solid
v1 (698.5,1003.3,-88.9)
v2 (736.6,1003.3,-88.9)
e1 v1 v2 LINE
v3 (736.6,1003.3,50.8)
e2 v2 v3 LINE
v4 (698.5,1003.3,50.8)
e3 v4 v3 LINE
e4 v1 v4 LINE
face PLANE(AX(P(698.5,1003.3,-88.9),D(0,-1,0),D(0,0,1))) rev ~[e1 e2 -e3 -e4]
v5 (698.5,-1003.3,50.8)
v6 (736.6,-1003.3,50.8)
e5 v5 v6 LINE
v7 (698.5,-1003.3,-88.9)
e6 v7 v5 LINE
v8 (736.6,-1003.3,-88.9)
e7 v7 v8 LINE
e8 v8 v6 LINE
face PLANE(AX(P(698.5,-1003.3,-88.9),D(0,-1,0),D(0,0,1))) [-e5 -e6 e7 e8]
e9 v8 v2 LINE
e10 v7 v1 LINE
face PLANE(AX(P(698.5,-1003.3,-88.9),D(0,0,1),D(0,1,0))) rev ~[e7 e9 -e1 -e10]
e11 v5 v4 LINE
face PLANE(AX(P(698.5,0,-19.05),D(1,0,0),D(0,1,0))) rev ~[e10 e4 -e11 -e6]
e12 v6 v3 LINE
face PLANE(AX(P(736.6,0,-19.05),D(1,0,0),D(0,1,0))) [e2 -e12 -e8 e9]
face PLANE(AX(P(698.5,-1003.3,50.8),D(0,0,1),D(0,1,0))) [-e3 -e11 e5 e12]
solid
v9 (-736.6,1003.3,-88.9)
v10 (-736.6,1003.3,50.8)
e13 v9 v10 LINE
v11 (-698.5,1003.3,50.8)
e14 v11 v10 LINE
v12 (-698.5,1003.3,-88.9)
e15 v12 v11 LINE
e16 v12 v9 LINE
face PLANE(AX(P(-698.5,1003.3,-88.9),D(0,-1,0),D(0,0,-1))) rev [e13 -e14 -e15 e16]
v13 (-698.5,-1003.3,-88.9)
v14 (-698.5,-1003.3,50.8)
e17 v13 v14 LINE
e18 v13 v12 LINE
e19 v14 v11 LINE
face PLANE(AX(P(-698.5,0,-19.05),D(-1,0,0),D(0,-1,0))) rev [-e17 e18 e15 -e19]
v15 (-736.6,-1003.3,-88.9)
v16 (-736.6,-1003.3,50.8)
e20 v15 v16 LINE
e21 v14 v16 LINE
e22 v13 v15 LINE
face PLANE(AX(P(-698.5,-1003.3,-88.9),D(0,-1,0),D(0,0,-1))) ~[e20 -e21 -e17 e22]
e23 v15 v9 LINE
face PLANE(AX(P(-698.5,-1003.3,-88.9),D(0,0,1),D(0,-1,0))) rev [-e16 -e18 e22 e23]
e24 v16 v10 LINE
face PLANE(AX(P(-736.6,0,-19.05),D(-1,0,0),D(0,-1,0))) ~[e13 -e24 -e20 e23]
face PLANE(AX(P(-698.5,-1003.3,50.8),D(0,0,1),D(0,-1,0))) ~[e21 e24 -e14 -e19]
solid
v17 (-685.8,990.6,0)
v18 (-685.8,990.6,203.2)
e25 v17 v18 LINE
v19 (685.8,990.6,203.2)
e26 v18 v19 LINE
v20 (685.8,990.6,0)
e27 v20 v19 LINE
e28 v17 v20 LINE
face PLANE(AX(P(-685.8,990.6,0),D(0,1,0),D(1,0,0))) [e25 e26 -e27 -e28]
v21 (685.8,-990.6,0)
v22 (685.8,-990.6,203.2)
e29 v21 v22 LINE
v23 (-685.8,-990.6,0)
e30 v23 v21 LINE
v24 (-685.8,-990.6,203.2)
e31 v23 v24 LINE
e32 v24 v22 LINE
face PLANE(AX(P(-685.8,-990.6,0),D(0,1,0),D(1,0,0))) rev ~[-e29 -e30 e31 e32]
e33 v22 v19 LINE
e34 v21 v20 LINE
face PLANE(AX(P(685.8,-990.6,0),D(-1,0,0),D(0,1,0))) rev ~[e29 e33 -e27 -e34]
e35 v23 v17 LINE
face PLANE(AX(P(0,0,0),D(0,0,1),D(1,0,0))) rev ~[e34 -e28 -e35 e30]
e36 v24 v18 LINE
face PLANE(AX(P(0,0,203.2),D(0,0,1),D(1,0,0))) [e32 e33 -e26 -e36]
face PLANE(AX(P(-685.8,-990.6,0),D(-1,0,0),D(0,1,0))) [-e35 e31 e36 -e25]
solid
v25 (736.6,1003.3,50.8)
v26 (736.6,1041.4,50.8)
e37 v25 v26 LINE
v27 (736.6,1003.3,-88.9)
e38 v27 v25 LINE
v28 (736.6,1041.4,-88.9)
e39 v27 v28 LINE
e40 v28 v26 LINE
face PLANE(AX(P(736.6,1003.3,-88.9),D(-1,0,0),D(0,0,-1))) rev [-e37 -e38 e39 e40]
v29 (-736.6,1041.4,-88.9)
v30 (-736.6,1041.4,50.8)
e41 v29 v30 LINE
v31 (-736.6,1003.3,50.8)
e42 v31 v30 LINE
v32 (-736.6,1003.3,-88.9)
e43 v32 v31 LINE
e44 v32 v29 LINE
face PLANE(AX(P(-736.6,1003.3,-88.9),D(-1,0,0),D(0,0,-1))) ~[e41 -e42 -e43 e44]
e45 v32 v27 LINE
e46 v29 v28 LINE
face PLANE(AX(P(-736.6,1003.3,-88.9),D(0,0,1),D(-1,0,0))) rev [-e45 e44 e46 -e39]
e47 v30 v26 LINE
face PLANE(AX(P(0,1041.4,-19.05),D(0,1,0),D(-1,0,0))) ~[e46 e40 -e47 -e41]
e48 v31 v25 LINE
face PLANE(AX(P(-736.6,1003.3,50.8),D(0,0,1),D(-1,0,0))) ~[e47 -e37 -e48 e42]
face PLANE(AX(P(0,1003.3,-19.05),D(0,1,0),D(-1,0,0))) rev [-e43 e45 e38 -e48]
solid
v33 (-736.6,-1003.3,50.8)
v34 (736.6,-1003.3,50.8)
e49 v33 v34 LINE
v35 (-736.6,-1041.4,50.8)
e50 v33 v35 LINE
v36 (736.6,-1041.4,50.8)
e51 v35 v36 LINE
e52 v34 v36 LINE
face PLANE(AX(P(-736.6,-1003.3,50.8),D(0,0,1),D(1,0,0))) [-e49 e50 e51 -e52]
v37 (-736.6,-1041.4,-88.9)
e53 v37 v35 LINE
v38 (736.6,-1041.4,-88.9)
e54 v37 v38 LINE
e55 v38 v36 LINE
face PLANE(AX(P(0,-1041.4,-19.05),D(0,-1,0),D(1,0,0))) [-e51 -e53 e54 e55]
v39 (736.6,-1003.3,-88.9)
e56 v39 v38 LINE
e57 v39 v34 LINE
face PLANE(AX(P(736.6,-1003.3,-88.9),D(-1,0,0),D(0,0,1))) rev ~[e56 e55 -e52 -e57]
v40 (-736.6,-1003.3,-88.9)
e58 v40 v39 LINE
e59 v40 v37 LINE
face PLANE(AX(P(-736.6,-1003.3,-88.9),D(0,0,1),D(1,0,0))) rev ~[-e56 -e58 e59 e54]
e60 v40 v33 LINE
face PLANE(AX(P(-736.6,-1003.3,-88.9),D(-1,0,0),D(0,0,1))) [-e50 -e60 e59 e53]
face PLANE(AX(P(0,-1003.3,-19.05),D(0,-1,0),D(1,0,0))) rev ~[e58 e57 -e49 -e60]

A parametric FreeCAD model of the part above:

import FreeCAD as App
import Part
import Sketcher
from FreeCAD import Vector
Q = App.Units.Quantity

doc = App.newDocument("Part")
body = doc.addObject("PartDesign::Body", "Body")

# Sketch on XY plane
sketch1 = body.newObject("Sketcher::SketchObject", "Sketch")
sketch1.AttachmentSupport = (doc.getObject("XY_Plane"), [""])
sketch1.MapMode = "FlatFace"
sketch1.addGeometry([
    Part.LineSegment(Vector(-686, 991, 0), Vector(-686, -991, 0)),
    Part.LineSegment(Vector(-686, -991, 0), Vector(686, -991, 0)),
    Part.LineSegment(Vector(686, -991, 0), Vector(686, 991, 0)),
    Part.LineSegment(Vector(686, 991, 0), Vector(-686, 991, 0)),
], False)
sketch1.addConstraint([
    Sketcher.Constraint("Coincident", 0, 2, 1, 1),
    Sketcher.Constraint("Coincident", 1, 2, 2, 1),
    Sketcher.Constraint("Coincident", 2, 2, 3, 1),
    Sketcher.Constraint("Coincident", 3, 2, 0, 1),
    Sketcher.Constraint("Vertical", 0),
    Sketcher.Constraint("Horizontal", 1),
    Sketcher.Constraint("Vertical", 2),
    Sketcher.Constraint("Horizontal", 3),
    Sketcher.Constraint("Symmetric", 0, 2, 2, 2, -1, 1),
    Sketcher.Constraint("DistanceX", 1, 1, 1, 2, Q("54 in")),
    Sketcher.Constraint("DistanceY", 0, 2, 0, 1, Q("78 in")),
])
pad1 = body.newObject("PartDesign::Pad", "Pad")
pad1.Profile = sketch1
pad1.Length = Q("8 in")
body2 = doc.addObject("PartDesign::Body", "Body001")

# Sketch on YZ plane
sketch2 = body2.newObject("Sketcher::SketchObject", "Sketch001")
sketch2.AttachmentSupport = (doc.getObject("YZ_Plane001"), [""])
sketch2.MapMode = "FlatFace"
sketch2.AttachmentOffset = App.Placement(Vector(0, 0, 27.5 * 25.4), App.Rotation())
sketch2.addGeometry([
    Part.LineSegment(Vector(-1003, 51, 0), Vector(-1003, -89, 0)),
    Part.LineSegment(Vector(-1003, -89, 0), Vector(1003, -89, 0)),
    Part.LineSegment(Vector(1003, -89, 0), Vector(1003, 51, 0)),
    Part.LineSegment(Vector(1003, 51, 0), Vector(-1003, 51, 0)),
], False)
sketch2.addConstraint([
    Sketcher.Constraint("Coincident", 0, 2, 1, 1),
    Sketcher.Constraint("Coincident", 1, 2, 2, 1),
    Sketcher.Constraint("Coincident", 2, 2, 3, 1),
    Sketcher.Constraint("Coincident", 3, 2, 0, 1),
    Sketcher.Constraint("Vertical", 0),
    Sketcher.Constraint("Horizontal", 1),
    Sketcher.Constraint("Vertical", 2),
    Sketcher.Constraint("Horizontal", 3),
    Sketcher.Constraint("DistanceX", 1, 1, 1, 2, Q("79 in")),
    Sketcher.Constraint("DistanceY", 0, 2, 0, 1, Q("5.5 in")),
    Sketcher.Constraint("DistanceY", -1, 1, 2, 2, Q("2 in")),
    Sketcher.Constraint("DistanceX", 0, 2, -1, 1, Q("39.5 in")),
])
pad2 = body2.newObject("PartDesign::Pad", "Pad001")
pad2.Profile = sketch2
pad2.Length = Q("1.5 in")
body3 = doc.addObject("PartDesign::Body", "Body002")
doc.recompute()

mirroring = doc.addObject("Part::Mirroring", "Mirroring")
mirroring.Source = body2
mirroring.Base = Vector(0, 0, 0)
mirroring.Normal = Vector(1, 0, 0)
body3.BaseFeature = mirroring
doc.recompute()
body4 = doc.addObject("PartDesign::Body", "Body003")

# Sketch on XZ plane
sketch3 = body4.newObject("Sketcher::SketchObject", "Sketch002")
sketch3.AttachmentSupport = (doc.getObject("XZ_Plane003"), [""])
sketch3.MapMode = "FlatFace"
sketch3.AttachmentOffset = App.Placement(Vector(0, 0, 39.5 * 25.4), App.Rotation())
sketch3.addGeometry([
    Part.LineSegment(Vector(-737, 51, 0), Vector(-737, -89, 0)),
    Part.LineSegment(Vector(-737, -89, 0), Vector(737, -89, 0)),
    Part.LineSegment(Vector(737, -89, 0), Vector(737, 51, 0)),
    Part.LineSegment(Vector(737, 51, 0), Vector(-737, 51, 0)),
], False)
sketch3.addConstraint([
    Sketcher.Constraint("Coincident", 0, 2, 1, 1),
    Sketcher.Constraint("Coincident", 1, 2, 2, 1),
    Sketcher.Constraint("Coincident", 2, 2, 3, 1),
    Sketcher.Constraint("Coincident", 3, 2, 0, 1),
    Sketcher.Constraint("Vertical", 0),
    Sketcher.Constraint("Horizontal", 1),
    Sketcher.Constraint("Vertical", 2),
    Sketcher.Constraint("Horizontal", 3),
    Sketcher.Constraint("DistanceX", 1, 1, 1, 2, Q("58 in")),
    Sketcher.Constraint("DistanceY", 0, 2, 0, 1, Q("5.5 in")),
    Sketcher.Constraint("DistanceX", 0, 2, -1, 1, Q("29 in")),
    Sketcher.Constraint("DistanceY", -1, 1, 2, 2, Q("2 in")),
])
pad3 = body4.newObject("PartDesign::Pad", "Pad002")
pad3.Profile = sketch3
pad3.Length = Q("1.5 in")
body5 = doc.addObject("PartDesign::Body", "Body004")
doc.recompute()

mirroring2 = doc.addObject("Part::Mirroring", "Mirroring001")
mirroring2.Source = body4
mirroring2.Base = Vector(0, 0, 0)
mirroring2.Normal = Vector(0, -1, 0)
body5.BaseFeature = mirroring2
doc.recompute()
mirroring.Visibility = False
mirroring2.Visibility = False

doc.recompute()
